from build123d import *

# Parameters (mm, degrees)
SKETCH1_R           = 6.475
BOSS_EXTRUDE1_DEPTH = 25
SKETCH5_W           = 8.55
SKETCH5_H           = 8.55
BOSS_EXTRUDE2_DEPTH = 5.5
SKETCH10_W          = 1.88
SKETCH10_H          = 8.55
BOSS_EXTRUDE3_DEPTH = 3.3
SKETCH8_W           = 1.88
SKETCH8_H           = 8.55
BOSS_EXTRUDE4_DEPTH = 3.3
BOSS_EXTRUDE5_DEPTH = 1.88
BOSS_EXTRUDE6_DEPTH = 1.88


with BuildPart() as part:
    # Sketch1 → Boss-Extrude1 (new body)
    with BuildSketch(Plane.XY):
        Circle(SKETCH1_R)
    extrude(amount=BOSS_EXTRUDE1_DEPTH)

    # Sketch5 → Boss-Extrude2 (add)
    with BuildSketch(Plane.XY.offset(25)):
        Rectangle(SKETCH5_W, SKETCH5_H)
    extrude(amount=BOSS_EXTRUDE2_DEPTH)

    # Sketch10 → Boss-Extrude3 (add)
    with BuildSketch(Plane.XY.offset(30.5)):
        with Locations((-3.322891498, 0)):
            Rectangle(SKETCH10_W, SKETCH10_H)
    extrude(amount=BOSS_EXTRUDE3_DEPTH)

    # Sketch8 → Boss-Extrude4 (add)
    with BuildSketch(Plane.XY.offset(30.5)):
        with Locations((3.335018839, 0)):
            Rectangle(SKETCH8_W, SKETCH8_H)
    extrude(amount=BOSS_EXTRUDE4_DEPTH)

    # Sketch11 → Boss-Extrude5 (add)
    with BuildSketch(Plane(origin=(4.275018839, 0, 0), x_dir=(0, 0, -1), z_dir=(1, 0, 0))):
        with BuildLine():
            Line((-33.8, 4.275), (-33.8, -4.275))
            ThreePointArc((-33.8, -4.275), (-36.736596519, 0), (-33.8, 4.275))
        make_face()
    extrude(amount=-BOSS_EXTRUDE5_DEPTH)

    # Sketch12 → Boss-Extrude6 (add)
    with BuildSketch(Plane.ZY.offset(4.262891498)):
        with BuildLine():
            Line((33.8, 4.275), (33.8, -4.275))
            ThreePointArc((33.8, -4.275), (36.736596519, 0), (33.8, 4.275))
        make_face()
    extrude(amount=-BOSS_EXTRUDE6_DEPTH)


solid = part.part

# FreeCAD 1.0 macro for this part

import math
import FreeCAD as App
import Part
import Sketcher

V = App.Vector

doc = App.newDocument("Part")
body = doc.addObject("PartDesign::Body", "Body")

# Sketch on XY plane
sketch1 = doc.addObject("Sketcher::SketchObject", "Sketch")
body.addObject(sketch1)
sketch1.AttachmentSupport = (doc.XY_Plane, [""])
sketch1.MapMode = "FlatFace"
sketch1.addGeometry(Part.Circle(V(0, 0, 0), V(0, 0, 1), 6.475), False)
sketch1.addConstraint([
    Sketcher.Constraint("Coincident", 0, 3, -1, 1),
    Sketcher.Constraint("Diameter", 0, 12.95),
])
pad1 = doc.addObject("PartDesign::Pad", "Pad")
body.addObject(pad1)
pad1.Profile = sketch1
pad1.Length = 25

# Sketch on XY plane
sketch2 = doc.addObject("Sketcher::SketchObject", "Sketch001")
body.addObject(sketch2)
sketch2.AttachmentSupport = (doc.XY_Plane, [""])
sketch2.MapMode = "FlatFace"
sketch2.AttachmentOffset = App.Placement(V(0, 0, 25), App.Rotation())
sketch2.addGeometry([
    Part.LineSegment(V(-4.275, 4.275, 0), V(-4.275, -4.275, 0)),
    Part.LineSegment(V(-4.275, -4.275, 0), V(4.275, -4.275, 0)),
    Part.LineSegment(V(4.275, -4.275, 0), V(4.275, 4.275, 0)),
    Part.LineSegment(V(4.275, 4.275, 0), V(-4.275, 4.275, 0)),
], False)
sketch2.addConstraint([
    Sketcher.Constraint("Coincident", 0, 2, 1, 1),
    Sketcher.Constraint("Coincident", 1, 2, 2, 1),
    Sketcher.Constraint("Coincident", 2, 2, 3, 1),
    Sketcher.Constraint("Coincident", 3, 2, 0, 1),
    Sketcher.Constraint("Vertical", 0),
    Sketcher.Constraint("Horizontal", 1),
    Sketcher.Constraint("Vertical", 2),
    Sketcher.Constraint("Horizontal", 3),
    Sketcher.Constraint("Symmetric", 0, 2, 2, 2, -1, 1),
    Sketcher.Constraint("Equal", 3, 0),
    Sketcher.Constraint("DistanceX", 1, 1, 1, 2, 8.55),
])
pad2 = doc.addObject("PartDesign::Pad", "Pad001")
body.addObject(pad2)
pad2.Profile = sketch2
pad2.Length = 5.5

# Sketch on XY plane
sketch3 = doc.addObject("Sketcher::SketchObject", "Sketch002")
body.addObject(sketch3)
sketch3.AttachmentSupport = (doc.XY_Plane, [""])
sketch3.MapMode = "FlatFace"
sketch3.AttachmentOffset = App.Placement(V(0, 0, 30.5), App.Rotation())
sketch3.addGeometry([
    Part.LineSegment(V(-4.262891, 4.275, 0), V(-4.262891, -4.275, 0)),
    Part.LineSegment(V(-4.262891, -4.275, 0), V(-2.382891, -4.275, 0)),
    Part.LineSegment(V(-2.382891, -4.275, 0), V(-2.382891, 4.275, 0)),
    Part.LineSegment(V(-2.382891, 4.275, 0), V(-4.262891, 4.275, 0)),
], False)
sketch3.addConstraint([
    Sketcher.Constraint("Coincident", 0, 2, 1, 1),
    Sketcher.Constraint("Coincident", 1, 2, 2, 1),
    Sketcher.Constraint("Coincident", 2, 2, 3, 1),
    Sketcher.Constraint("Coincident", 3, 2, 0, 1),
    Sketcher.Constraint("Vertical", 0),
    Sketcher.Constraint("Horizontal", 1),
    Sketcher.Constraint("Vertical", 2),
    Sketcher.Constraint("Horizontal", 3),
    Sketcher.Constraint("DistanceX", 1, 1, 1, 2, 1.88),
    Sketcher.Constraint("DistanceY", 0, 2, 0, 1, 8.55),
    Sketcher.Constraint("DistanceY", 0, 2, -1, 1, 4.275),
    Sketcher.Constraint("DistanceX", 0, 2, -1, 1, 4.262891),
])
pad3 = doc.addObject("PartDesign::Pad", "Pad002")
body.addObject(pad3)
pad3.Profile = sketch3
pad3.Length = 3.3

# Sketch on XY plane
sketch4 = doc.addObject("Sketcher::SketchObject", "Sketch003")
body.addObject(sketch4)
sketch4.AttachmentSupport = (doc.XY_Plane, [""])
sketch4.MapMode = "FlatFace"
sketch4.AttachmentOffset = App.Placement(V(0, 0, 30.5), App.Rotation())
sketch4.addGeometry([
    Part.LineSegment(V(2.395019, 4.275, 0), V(2.395019, -4.275, 0)),
    Part.LineSegment(V(2.395019, -4.275, 0), V(4.275019, -4.275, 0)),
    Part.LineSegment(V(4.275019, -4.275, 0), V(4.275019, 4.275, 0)),
    Part.LineSegment(V(4.275019, 4.275, 0), V(2.395019, 4.275, 0)),
], False)
sketch4.addConstraint([
    Sketcher.Constraint("Coincident", 0, 2, 1, 1),
    Sketcher.Constraint("Coincident", 1, 2, 2, 1),
    Sketcher.Constraint("Coincident", 2, 2, 3, 1),
    Sketcher.Constraint("Coincident", 3, 2, 0, 1),
    Sketcher.Constraint("Vertical", 0),
    Sketcher.Constraint("Horizontal", 1),
    Sketcher.Constraint("Vertical", 2),
    Sketcher.Constraint("Horizontal", 3),
    Sketcher.Constraint("DistanceX", 1, 1, 1, 2, 1.88),
    Sketcher.Constraint("DistanceY", 0, 2, 0, 1, 8.55),
    Sketcher.Constraint("DistanceY", 0, 2, -1, 1, 4.275),
    Sketcher.Constraint("DistanceX", -1, 1, 0, 2, 2.395019),
])
pad4 = doc.addObject("PartDesign::Pad", "Pad003")
body.addObject(pad4)
pad4.Profile = sketch4
pad4.Length = 3.3

# Sketch on YZ plane
sketch5 = doc.addObject("Sketcher::SketchObject", "Sketch004")
body.addObject(sketch5)
sketch5.AttachmentSupport = (doc.YZ_Plane, [""])
sketch5.MapMode = "FlatFace"
sketch5.AttachmentOffset = App.Placement(V(0, 0, 4.275019), App.Rotation())
sketch5.addGeometry([
    Part.LineSegment(V(-4.275, 33.8, 0), V(4.275, 33.8, 0)),
    Part.ArcOfCircle(Part.Circle(V(0, 32.156597, 0), V(0, 0, 1), 4.58), math.radians(21.027851), math.radians(158.972149)),
], False)
sketch5.addConstraint([
    Sketcher.Constraint("Coincident", 0, 1, 1, 2),
    Sketcher.Constraint("Coincident", 1, 1, 0, 2),
    Sketcher.Constraint("Horizontal", 0),
    Sketcher.Constraint("PointOnObject", 1, 3, -2),
    Sketcher.Constraint("Radius", 1, 4.58),
    Sketcher.Constraint("DistanceX", 0, 1, 0, 2, 8.55),
    Sketcher.Constraint("DistanceY", -1, 1, 0, 1, 33.8),
])
pad5 = doc.addObject("PartDesign::Pad", "Pad004")
body.addObject(pad5)
pad5.Profile = sketch5
pad5.Length = 1.88
pad5.Reversed = True

# Sketch on YZ plane
sketch6 = doc.addObject("Sketcher::SketchObject", "Sketch005")
body.addObject(sketch6)
sketch6.AttachmentSupport = (doc.YZ_Plane, [""])
sketch6.MapMode = "FlatFace"
sketch6.AttachmentOffset = App.Placement(V(0, 0, -4.262891), App.Rotation())
sketch6.addGeometry([
    Part.LineSegment(V(4.275, 33.8, 0), V(-4.275, 33.8, 0)),
    Part.ArcOfCircle(Part.Circle(V(0, 32.156597, 0), V(0, 0, 1), 4.58), math.radians(21.027851), math.radians(158.972149)),
], False)
sketch6.addConstraint([
    Sketcher.Constraint("Coincident", 0, 1, 1, 1),
    Sketcher.Constraint("Coincident", 1, 2, 0, 2),
    Sketcher.Constraint("Horizontal", 0),
    Sketcher.Constraint("PointOnObject", 1, 3, -2),
    Sketcher.Constraint("Radius", 1, 4.58),
    Sketcher.Constraint("DistanceX", 0, 2, 0, 1, 8.55),
    Sketcher.Constraint("DistanceY", -1, 1, 0, 1, 33.8),
])
pad6 = doc.addObject("PartDesign::Pad", "Pad005")
body.addObject(pad6)
pad6.Profile = sketch6
pad6.Length = 1.88

doc.recompute()
